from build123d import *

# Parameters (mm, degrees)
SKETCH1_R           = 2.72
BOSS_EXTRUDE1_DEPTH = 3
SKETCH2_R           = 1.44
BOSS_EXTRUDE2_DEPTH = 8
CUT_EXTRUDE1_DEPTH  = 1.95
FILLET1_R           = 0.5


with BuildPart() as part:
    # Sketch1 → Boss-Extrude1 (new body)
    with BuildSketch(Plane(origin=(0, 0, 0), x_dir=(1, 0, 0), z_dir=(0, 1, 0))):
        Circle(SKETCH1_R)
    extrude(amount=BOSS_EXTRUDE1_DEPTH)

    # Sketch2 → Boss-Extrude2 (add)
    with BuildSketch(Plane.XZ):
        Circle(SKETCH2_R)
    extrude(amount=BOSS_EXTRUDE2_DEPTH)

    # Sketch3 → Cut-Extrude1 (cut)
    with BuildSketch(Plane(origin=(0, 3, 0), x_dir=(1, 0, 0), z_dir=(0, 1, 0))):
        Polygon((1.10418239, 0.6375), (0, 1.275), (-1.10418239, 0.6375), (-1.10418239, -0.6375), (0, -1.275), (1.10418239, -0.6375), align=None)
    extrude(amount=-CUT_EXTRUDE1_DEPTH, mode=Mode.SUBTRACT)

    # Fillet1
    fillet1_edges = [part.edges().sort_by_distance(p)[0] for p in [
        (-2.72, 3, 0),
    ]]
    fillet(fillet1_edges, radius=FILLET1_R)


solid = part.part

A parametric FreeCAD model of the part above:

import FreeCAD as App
import Part
import Sketcher
from FreeCAD import Vector
Q = App.Units.Quantity


def edges_at(feature, points):
    """Names of the edges that pass closest to the given points."""
    edges = feature.Shape.Edges
    near = lambda p: min(range(len(edges)), key=lambda i: edges[i].distToShape(Part.Vertex(*p))[0])
    return sorted({f"Edge{near(p) + 1}" for p in points})

doc = App.newDocument("Part")
params = doc.addObject("Spreadsheet::Sheet", "Params")
for row, (alias, value) in enumerate([
    ("sketch1_diameter", "5.44 mm"),
    ("pad1_length", "3 mm"),
    ("sketch2_diameter", "2.88 mm"),
    ("pad2_length", "8 mm"),
    ("pocket1_length", "1.95 mm"),
    ("fillet_radius", "0.5 mm"),
], start=1):
    params.set(f"A{row}", alias)
    params.set(f"B{row}", "=" + value)
    params.setAlias(f"B{row}", alias)

body = doc.addObject("PartDesign::Body", "Body")

sketch1 = doc.addObject("Sketcher::SketchObject", "Sketch")
body.addObject(sketch1)
sketch1.AttachmentSupport = (doc.XZ_Plane, [""])
sketch1.MapMode = "FlatFace"
sketch1.addGeometry(Part.Circle(Vector(0, 0, 0), Vector(0, 0, 1), 2.7), False)
sketch1.addConstraint([
    Sketcher.Constraint("Coincident", 0, 3, -1, 1),
    Sketcher.Constraint("Diameter", 0, Q("5.44 mm")),
])
sketch1.setExpression("Constraints[1]", "Params.sketch1_diameter")
pad1 = doc.addObject("PartDesign::Pad", "Pad")
body.addObject(pad1)
pad1.Profile = sketch1
pad1.setExpression("Length", "Params.pad1_length")
pad1.Reversed = True

sketch2 = doc.addObject("Sketcher::SketchObject", "Sketch001")
body.addObject(sketch2)
sketch2.AttachmentSupport = (doc.XZ_Plane, [""])
sketch2.MapMode = "FlatFace"
sketch2.addGeometry(Part.Circle(Vector(0, 0, 0), Vector(0, 0, 1), 1.4), False)
sketch2.addConstraint([
    Sketcher.Constraint("Coincident", 0, 3, -1, 1),
    Sketcher.Constraint("Diameter", 0, Q("2.88 mm")),
])
sketch2.setExpression("Constraints[1]", "Params.sketch2_diameter")
pad2 = doc.addObject("PartDesign::Pad", "Pad001")
body.addObject(pad2)
pad2.Profile = sketch2
pad2.setExpression("Length", "Params.pad2_length")

sketch3 = doc.addObject("Sketcher::SketchObject", "Sketch002")
body.addObject(sketch3)
sketch3.AttachmentSupport = (doc.XZ_Plane, [""])
sketch3.MapMode = "FlatFace"
sketch3.AttachmentOffset = App.Placement(Vector(0, 0, -3), App.Rotation())
sketch3.addGeometry([
    Part.LineSegment(Vector(1.1, -0.6, 0), Vector(0, -1.3, 0)),
    Part.LineSegment(Vector(0, -1.3, 0), Vector(-1.1, -0.6, 0)),
    Part.LineSegment(Vector(-1.1, -0.6, 0), Vector(-1.1, 0.6, 0)),
    Part.LineSegment(Vector(-1.1, 0.6, 0), Vector(0, 1.3, 0)),
    Part.LineSegment(Vector(0, 1.3, 0), Vector(1.1, 0.6, 0)),
    Part.LineSegment(Vector(1.1, 0.6, 0), Vector(1.1, -0.6, 0)),
], False)
sketch3.addConstraint([
    Sketcher.Constraint("Coincident", 0, 2, 1, 1),
    Sketcher.Constraint("Coincident", 1, 2, 2, 1),
    Sketcher.Constraint("Coincident", 2, 2, 3, 1),
    Sketcher.Constraint("Coincident", 3, 2, 4, 1),
    Sketcher.Constraint("Coincident", 4, 2, 5, 1),
    Sketcher.Constraint("Coincident", 5, 2, 0, 1),
    Sketcher.Constraint("Vertical", 2),
    Sketcher.Constraint("Vertical", 5),
    Sketcher.Constraint("Symmetric", 0, 2, 3, 2, -1, 1),
    Sketcher.Constraint("Symmetric", 1, 2, 4, 2, -1, 1),
    Sketcher.Constraint("PointOnObject", 0, 2, -2),
    Sketcher.Constraint("Parallel", 0, 3),
    Sketcher.Constraint("Horizontal", 2, 2, 4, 2),
    Sketcher.Constraint("Angle", 0, Q("-150 deg")),
    Sketcher.Constraint("DistanceY", 2, 1, 2, 2, Q("1.275 mm")),
    Sketcher.Constraint("DistanceY", 0, 2, 3, 2, Q("2.55 mm")),
])
pocket1 = doc.addObject("PartDesign::Pocket", "Pocket")
body.addObject(pocket1)
pocket1.Profile = sketch3
pocket1.setExpression("Length", "Params.pocket1_length")
pocket1.Reversed = True
doc.recompute()

fillet = doc.addObject("PartDesign::Fillet", "Fillet")
body.addObject(fillet)
fillet.Base = (pocket1, edges_at(pocket1, [(-2.72, 3, 0)]))
fillet.setExpression("Radius", "Params.fillet_radius")

doc.recompute()
